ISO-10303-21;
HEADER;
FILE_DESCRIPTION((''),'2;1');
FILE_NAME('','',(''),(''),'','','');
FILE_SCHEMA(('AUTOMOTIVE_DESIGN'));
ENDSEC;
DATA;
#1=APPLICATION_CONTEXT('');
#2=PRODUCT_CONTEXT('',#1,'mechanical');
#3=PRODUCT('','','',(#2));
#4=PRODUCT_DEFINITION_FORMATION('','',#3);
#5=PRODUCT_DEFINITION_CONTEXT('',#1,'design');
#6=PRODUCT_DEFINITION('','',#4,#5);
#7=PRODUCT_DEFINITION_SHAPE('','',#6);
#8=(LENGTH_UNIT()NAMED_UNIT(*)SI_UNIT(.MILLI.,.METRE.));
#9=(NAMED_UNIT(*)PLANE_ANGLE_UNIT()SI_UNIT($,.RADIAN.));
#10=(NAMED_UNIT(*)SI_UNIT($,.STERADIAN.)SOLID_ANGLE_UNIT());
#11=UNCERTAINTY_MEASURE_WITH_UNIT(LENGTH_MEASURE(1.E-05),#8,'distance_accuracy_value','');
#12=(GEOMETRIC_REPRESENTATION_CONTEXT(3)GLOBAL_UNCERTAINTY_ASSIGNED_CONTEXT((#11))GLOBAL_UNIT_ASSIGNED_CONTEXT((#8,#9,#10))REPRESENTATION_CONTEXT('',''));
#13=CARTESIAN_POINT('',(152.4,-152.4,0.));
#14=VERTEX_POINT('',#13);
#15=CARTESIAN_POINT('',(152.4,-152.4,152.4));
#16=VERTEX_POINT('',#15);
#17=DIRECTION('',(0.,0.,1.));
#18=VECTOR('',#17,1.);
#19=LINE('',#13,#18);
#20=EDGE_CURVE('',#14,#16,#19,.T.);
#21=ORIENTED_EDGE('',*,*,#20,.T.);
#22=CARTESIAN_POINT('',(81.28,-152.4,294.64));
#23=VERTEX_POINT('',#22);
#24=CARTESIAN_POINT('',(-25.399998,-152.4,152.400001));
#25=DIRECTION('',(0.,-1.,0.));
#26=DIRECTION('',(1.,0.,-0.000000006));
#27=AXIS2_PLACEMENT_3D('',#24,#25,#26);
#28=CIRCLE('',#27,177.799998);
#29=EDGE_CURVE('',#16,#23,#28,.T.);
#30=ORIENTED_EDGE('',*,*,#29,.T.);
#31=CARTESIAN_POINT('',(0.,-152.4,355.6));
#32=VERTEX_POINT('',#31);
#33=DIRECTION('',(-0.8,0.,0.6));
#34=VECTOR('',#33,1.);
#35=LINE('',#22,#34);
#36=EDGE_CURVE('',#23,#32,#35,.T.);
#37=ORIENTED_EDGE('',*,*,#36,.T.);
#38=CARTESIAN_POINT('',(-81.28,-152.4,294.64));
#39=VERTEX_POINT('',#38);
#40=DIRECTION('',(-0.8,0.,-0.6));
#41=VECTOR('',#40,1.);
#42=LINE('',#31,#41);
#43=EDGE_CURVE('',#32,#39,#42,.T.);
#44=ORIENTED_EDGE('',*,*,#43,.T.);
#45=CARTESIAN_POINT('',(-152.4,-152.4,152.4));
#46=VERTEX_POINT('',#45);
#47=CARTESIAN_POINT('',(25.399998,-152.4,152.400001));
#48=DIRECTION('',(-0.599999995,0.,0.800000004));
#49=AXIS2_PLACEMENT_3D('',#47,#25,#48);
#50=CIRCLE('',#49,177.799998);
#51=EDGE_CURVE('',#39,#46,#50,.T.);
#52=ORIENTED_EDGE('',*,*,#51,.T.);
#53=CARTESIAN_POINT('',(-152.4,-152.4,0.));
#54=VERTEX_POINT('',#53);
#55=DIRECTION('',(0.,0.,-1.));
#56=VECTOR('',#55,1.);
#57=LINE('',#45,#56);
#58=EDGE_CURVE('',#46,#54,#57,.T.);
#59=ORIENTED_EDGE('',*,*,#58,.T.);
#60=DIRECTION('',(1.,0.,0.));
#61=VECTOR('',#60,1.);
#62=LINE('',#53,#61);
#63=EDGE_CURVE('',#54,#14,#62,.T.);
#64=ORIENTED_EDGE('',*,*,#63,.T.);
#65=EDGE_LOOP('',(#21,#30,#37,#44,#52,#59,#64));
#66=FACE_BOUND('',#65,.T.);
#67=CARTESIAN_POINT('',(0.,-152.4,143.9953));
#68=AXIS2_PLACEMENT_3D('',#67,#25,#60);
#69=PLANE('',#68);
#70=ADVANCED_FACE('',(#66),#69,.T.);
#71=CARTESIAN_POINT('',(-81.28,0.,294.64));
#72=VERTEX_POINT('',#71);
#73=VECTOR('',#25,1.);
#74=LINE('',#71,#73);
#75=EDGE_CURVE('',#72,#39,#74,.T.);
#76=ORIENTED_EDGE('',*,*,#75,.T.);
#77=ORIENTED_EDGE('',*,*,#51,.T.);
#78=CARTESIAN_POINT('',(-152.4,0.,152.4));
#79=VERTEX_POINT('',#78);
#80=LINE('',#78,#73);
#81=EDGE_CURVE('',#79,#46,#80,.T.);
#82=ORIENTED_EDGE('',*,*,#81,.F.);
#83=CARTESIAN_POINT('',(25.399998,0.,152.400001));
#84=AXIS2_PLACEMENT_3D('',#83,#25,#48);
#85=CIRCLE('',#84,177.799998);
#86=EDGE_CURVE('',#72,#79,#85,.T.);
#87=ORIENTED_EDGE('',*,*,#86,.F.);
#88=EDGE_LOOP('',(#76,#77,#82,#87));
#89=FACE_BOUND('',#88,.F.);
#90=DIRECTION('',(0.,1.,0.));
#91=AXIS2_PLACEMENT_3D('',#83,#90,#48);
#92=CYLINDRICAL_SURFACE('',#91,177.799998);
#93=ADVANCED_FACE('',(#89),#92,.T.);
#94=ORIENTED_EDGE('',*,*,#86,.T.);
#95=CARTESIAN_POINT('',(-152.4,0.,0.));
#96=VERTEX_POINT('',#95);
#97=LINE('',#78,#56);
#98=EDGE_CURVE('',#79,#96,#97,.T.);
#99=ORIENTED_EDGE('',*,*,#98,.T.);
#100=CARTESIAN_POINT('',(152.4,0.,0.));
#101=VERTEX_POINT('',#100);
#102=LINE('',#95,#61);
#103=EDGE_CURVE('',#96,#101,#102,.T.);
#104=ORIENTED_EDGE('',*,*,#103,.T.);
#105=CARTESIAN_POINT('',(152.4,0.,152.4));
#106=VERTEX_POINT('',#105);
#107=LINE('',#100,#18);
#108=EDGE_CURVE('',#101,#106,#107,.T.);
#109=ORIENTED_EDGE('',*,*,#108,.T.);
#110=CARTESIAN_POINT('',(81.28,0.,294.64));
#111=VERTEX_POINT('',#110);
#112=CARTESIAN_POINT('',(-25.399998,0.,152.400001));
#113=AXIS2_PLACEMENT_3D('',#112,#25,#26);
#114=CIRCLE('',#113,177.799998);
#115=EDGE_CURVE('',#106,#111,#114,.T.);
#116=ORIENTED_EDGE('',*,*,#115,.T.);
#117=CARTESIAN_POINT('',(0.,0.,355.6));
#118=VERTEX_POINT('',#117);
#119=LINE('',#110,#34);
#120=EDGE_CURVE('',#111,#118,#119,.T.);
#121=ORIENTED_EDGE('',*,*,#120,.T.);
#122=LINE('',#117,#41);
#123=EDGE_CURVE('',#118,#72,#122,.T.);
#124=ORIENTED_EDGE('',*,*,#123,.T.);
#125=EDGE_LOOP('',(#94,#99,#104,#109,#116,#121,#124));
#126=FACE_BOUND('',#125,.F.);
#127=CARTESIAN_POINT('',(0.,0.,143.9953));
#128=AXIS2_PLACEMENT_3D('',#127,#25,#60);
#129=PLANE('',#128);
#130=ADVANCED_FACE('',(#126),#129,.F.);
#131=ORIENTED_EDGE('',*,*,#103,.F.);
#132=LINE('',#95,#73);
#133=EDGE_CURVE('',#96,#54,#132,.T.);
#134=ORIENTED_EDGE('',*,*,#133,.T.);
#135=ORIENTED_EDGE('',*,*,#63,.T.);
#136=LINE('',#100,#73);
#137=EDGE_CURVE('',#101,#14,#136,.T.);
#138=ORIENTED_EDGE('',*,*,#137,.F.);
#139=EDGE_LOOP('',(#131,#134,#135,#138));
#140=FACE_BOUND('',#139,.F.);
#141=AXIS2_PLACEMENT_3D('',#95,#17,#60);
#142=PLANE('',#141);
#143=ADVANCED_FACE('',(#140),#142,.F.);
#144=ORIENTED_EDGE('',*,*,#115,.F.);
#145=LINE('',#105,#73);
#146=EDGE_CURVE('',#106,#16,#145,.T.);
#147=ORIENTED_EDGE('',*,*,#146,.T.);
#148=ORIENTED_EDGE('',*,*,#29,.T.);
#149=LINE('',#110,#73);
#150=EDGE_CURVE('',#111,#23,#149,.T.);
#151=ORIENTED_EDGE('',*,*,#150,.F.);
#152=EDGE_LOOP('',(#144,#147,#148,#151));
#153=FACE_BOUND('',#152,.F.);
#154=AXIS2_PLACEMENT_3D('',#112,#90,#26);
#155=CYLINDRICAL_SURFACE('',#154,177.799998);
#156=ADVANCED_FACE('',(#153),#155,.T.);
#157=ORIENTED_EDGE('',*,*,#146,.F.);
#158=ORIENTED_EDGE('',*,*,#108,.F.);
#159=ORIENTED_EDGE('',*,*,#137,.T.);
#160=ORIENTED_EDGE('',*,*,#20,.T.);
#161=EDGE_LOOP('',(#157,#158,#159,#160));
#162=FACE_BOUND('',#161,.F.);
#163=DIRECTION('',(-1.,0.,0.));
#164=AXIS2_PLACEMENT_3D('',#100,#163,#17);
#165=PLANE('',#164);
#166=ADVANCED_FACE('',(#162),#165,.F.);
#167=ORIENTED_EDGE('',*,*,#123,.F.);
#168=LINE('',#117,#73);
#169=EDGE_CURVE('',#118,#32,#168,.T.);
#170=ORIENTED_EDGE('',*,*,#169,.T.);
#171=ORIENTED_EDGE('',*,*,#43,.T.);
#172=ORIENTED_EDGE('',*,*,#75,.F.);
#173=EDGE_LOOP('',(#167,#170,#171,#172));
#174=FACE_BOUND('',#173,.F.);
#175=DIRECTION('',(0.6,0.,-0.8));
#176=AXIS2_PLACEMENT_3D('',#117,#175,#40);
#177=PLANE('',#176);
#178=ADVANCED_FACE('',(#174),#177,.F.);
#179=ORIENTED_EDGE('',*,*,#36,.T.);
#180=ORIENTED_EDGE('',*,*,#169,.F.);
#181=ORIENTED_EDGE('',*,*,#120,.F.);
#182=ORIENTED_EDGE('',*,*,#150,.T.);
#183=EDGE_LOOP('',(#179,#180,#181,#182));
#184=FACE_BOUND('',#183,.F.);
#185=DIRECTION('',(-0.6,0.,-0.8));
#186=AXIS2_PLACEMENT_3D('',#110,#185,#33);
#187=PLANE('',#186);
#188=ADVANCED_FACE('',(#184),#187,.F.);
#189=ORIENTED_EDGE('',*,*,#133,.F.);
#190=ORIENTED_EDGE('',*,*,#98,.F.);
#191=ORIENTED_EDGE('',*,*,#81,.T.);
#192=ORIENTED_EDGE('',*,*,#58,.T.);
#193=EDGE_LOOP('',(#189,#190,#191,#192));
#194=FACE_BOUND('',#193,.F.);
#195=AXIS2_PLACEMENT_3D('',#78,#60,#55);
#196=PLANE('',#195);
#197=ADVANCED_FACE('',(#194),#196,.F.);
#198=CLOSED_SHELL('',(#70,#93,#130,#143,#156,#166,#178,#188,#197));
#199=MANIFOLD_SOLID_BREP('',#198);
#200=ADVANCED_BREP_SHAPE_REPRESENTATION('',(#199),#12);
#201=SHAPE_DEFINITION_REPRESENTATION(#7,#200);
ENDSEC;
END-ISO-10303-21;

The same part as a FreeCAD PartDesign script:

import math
import FreeCAD as App
import Part
import Sketcher
Q = App.Units.Quantity

doc = App.newDocument("Part")
body = doc.addObject("PartDesign::Body", "Body")

# Sketch on XZ plane
sketch1 = body.newObject("Sketcher::SketchObject", "Sketch")
sketch1.AttachmentSupport = (doc.getObject("XZ_Plane"), [""])
sketch1.MapMode = "FlatFace"
sketch1.addGeometry(Part.LineSegment(App.Vector(-152, 152, 0), App.Vector(-152, 0, 0)), False)
sketch1.addGeometry(Part.LineSegment(App.Vector(-152, 0, 0), App.Vector(152, 0, 0)), False)
sketch1.addGeometry(Part.LineSegment(App.Vector(152, 0, 0), App.Vector(152, 152, 0)), False)
sketch1.addGeometry(Part.ArcOfCircle(Part.Circle(App.Vector(-25, 152, 0), App.Vector(0, 0, 1), 178), math.radians(0), math.radians(53)), False)
sketch1.addGeometry(Part.LineSegment(App.Vector(81, 295, 0), App.Vector(0, 356, 0)), False)
sketch1.addGeometry(Part.LineSegment(App.Vector(0, 356, 0), App.Vector(-81, 295, 0)), False)
sketch1.addGeometry(Part.ArcOfCircle(Part.Circle(App.Vector(25, 152, 0), App.Vector(0, 0, 1), 178), math.radians(127), math.radians(180)), False)
sketch1.addConstraint(Sketcher.Constraint("Coincident", 0, 2, 1, 1))
sketch1.addConstraint(Sketcher.Constraint("Coincident", 1, 2, 2, 1))
sketch1.addConstraint(Sketcher.Constraint("Tangent", 2, 2, 3, 1))
sketch1.addConstraint(Sketcher.Constraint("Tangent", 3, 2, 4, 1))
sketch1.addConstraint(Sketcher.Constraint("Coincident", 4, 2, 5, 1))
sketch1.addConstraint(Sketcher.Constraint("Tangent", 5, 2, 6, 1))
sketch1.addConstraint(Sketcher.Constraint("Tangent", 6, 2, 0, 1))
sketch1.addConstraint(Sketcher.Constraint("Vertical", 0))
sketch1.addConstraint(Sketcher.Constraint("Horizontal", 1))
sketch1.addConstraint(Sketcher.Constraint("Vertical", 2))
sketch1.addConstraint(Sketcher.Constraint("Equal", 3, 6))
sketch1.addConstraint(Sketcher.Constraint("Symmetric", 0, 2, 1, 2, -1, 1))
sketch1.addConstraint(Sketcher.Constraint("Symmetric", 3, 2, 5, 2, -2))
sketch1.addConstraint(Sketcher.Constraint("Radius", 3, Q("6.9999999 in")))
sketch1.addConstraint(Sketcher.Constraint("DistanceX", 1, 1, 1, 2, Q("12 in")))
sketch1.addConstraint(Sketcher.Constraint("DistanceY", 0, 2, 0, 1, Q("6 in")))
sketch1.addConstraint(Sketcher.Constraint("Distance", 4, Q("4 in")))
pad1 = body.newObject("PartDesign::Pad", "Pad")
pad1.Profile = sketch1
pad1.Length = Q("6 in")

doc.recompute()
